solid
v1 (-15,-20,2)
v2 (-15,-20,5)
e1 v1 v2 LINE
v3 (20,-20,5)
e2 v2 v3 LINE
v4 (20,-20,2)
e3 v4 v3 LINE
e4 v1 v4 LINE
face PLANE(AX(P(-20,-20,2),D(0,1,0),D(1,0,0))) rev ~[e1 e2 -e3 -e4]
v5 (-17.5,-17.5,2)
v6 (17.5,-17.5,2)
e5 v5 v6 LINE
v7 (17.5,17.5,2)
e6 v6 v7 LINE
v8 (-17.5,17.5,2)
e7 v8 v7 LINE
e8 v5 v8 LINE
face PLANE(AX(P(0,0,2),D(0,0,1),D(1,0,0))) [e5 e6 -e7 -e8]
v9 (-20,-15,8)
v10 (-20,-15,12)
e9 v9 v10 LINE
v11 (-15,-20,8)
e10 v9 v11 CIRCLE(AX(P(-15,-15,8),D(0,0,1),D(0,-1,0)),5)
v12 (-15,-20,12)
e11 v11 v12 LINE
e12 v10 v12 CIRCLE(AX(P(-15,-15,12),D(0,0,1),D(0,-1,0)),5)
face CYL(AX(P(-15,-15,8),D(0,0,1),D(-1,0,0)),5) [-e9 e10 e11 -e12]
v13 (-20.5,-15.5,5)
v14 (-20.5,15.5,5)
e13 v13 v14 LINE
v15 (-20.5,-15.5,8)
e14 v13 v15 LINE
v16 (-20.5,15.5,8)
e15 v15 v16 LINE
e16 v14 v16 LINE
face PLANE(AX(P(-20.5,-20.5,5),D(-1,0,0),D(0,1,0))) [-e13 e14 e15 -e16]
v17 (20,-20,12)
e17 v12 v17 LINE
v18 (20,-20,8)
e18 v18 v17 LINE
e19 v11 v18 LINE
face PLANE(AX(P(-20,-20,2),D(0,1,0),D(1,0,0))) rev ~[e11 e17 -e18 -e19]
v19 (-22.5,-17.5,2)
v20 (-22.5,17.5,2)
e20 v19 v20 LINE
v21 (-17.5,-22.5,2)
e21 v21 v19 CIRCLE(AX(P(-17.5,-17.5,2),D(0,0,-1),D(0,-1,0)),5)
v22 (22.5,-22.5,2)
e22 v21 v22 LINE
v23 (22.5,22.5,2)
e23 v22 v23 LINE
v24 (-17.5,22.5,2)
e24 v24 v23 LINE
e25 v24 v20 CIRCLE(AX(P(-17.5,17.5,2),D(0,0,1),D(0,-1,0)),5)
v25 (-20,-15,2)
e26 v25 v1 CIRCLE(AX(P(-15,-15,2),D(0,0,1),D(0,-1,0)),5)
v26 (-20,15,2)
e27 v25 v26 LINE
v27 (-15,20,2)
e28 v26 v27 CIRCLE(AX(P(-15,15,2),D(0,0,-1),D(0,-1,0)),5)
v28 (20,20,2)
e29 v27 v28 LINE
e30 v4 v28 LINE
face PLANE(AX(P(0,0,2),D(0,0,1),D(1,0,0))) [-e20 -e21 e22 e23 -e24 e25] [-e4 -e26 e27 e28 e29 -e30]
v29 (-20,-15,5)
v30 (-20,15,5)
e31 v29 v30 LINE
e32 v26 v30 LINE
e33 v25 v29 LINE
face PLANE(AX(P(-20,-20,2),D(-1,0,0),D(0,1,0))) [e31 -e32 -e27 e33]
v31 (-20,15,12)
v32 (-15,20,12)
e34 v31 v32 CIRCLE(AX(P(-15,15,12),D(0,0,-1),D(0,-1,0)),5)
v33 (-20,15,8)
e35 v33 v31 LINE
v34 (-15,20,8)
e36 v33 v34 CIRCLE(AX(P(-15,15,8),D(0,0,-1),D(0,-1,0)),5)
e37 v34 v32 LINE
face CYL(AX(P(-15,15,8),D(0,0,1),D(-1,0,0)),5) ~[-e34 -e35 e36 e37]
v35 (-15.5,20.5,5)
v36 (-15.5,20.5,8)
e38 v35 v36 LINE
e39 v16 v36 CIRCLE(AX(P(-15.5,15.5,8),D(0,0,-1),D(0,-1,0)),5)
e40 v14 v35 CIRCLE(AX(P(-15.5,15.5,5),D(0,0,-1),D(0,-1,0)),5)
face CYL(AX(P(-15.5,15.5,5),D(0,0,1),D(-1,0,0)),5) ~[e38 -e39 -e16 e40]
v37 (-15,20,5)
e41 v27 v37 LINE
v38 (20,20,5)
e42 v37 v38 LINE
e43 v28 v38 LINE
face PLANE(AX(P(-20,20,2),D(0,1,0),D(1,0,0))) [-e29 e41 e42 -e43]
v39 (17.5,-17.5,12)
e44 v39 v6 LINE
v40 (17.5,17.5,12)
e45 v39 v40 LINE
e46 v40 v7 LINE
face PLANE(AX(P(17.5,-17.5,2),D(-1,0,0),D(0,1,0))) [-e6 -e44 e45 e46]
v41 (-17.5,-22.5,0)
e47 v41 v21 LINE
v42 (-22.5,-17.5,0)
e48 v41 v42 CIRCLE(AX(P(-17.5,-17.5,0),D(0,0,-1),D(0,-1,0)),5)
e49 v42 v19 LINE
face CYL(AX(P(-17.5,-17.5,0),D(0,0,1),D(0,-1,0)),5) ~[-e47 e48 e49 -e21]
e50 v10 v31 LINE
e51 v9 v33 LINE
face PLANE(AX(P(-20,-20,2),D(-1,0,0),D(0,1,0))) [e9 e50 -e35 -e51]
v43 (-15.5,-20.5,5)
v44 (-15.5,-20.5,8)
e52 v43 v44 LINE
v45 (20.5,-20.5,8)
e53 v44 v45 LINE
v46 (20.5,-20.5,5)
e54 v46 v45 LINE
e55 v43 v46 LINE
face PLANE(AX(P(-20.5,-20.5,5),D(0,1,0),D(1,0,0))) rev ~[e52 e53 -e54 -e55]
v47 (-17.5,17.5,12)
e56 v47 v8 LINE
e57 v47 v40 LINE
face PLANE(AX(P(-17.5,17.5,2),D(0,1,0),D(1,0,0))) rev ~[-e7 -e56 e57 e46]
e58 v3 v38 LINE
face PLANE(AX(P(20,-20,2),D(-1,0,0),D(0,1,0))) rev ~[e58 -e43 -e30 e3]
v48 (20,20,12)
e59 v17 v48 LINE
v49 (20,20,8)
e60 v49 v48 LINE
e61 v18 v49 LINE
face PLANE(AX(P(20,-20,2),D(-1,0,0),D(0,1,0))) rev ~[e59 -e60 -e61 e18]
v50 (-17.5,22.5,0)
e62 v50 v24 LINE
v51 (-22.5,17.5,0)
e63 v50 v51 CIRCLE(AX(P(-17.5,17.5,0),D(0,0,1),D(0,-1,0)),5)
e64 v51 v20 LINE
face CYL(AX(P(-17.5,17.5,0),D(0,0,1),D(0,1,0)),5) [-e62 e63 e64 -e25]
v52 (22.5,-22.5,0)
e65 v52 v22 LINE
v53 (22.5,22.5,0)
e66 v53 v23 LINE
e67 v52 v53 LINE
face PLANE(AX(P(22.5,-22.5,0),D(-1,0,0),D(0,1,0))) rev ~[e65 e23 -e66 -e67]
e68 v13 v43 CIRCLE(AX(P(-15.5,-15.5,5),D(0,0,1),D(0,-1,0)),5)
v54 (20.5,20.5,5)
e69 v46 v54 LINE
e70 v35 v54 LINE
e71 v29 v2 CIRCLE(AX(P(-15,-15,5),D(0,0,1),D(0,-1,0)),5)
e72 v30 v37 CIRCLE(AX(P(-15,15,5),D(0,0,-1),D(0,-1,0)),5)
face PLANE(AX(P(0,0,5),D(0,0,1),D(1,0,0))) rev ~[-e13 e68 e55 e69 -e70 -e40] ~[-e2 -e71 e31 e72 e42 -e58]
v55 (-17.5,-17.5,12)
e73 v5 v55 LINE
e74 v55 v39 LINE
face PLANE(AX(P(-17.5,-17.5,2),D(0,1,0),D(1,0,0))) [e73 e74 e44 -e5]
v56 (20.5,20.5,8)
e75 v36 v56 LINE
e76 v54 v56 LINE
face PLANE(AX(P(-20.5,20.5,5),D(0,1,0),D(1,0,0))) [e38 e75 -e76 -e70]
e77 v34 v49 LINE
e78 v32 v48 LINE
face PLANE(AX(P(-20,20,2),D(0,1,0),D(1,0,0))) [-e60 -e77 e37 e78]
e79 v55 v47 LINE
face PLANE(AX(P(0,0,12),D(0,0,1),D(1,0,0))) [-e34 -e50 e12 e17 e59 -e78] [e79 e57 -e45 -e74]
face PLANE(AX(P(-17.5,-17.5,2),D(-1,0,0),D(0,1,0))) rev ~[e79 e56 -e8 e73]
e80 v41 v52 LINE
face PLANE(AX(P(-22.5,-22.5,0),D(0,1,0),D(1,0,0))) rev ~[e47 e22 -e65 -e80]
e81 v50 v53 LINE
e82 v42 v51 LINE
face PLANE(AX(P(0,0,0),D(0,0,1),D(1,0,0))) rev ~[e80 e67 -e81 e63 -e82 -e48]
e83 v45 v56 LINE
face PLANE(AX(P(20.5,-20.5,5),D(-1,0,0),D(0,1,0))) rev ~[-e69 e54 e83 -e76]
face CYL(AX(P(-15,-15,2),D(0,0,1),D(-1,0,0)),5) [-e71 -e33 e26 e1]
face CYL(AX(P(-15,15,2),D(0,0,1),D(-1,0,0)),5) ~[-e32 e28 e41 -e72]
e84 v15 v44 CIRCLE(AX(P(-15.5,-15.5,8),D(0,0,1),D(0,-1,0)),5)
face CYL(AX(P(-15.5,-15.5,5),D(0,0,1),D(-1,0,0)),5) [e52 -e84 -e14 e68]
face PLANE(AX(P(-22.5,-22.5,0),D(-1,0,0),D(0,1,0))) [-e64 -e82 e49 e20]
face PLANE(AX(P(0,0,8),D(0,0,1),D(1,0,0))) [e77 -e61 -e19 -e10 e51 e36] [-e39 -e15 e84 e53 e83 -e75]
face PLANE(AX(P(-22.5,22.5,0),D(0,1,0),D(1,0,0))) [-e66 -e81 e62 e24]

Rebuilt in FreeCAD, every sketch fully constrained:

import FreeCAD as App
import Part
import Sketcher
from FreeCAD import Vector
Q = App.Units.Quantity


def edges_at(feature, points):
    """Names of the edges that pass closest to the given points."""
    edges = feature.Shape.Edges
    near = lambda p: min(range(len(edges)), key=lambda i: edges[i].distToShape(Part.Vertex(*p))[0])
    return sorted({f"Edge{near(p) + 1}" for p in points})


def add_polygon(sketch, points):
    """Adds a closed chain of lines whose ends are joined by coincident constraints."""
    first, n = sketch.GeometryCount, len(points)
    for a, b in zip(points, points[1:] + points[:1]):
        sketch.addGeometry(Part.LineSegment(App.Vector(*a, 0), App.Vector(*b, 0)), False)
    for i in range(n):
        sketch.addConstraint(Sketcher.Constraint("Coincident", first + i, 2, first + (i + 1) % n, 1))

doc = App.newDocument("Part")
params = doc.addObject("Spreadsheet::Sheet", "Params")
for row, (alias, value) in enumerate([
    ("sketch1_width", "45 mm"),
    ("pad1_length", "2 mm"),
    ("sketch2_width", "40 mm"),
    ("sketch2_width2", "35 mm"),
    ("pad2_length", "10 mm"),
    ("sketch3_width", "41 mm"),
    ("sketch3_width2", "35 mm"),
    ("pad3_length", "3 mm"),
    ("fillet_radius", "5 mm"),
], start=1):
    params.set(f"A{row}", alias)
    params.set(f"B{row}", "=" + value)
    params.setAlias(f"B{row}", alias)

body = doc.addObject("PartDesign::Body", "Body")

sketch1 = body.newObject("Sketcher::SketchObject", "Sketch")
sketch1.AttachmentSupport = (doc.getObject("XY_Plane"), [""])
sketch1.MapMode = "FlatFace"
add_polygon(sketch1, [(-22.5, 22.5), (-22.5, -22.5), (22.5, -22.5), (22.5, 22.5)])
sketch1.addConstraint(Sketcher.Constraint("Vertical", 0))
sketch1.addConstraint(Sketcher.Constraint("Horizontal", 1))
sketch1.addConstraint(Sketcher.Constraint("Vertical", 2))
sketch1.addConstraint(Sketcher.Constraint("Horizontal", 3))
sketch1.addConstraint(Sketcher.Constraint("Symmetric", 0, 2, 2, 2, -1, 1))
sketch1.addConstraint(Sketcher.Constraint("Equal", 3, 0))
sketch1.addConstraint(Sketcher.Constraint("DistanceX", 1, 1, 1, 2, Q("45 mm")))
sketch1.setExpression("Constraints[10]", "Params.sketch1_width")
pad1 = body.newObject("PartDesign::Pad", "Pad")
pad1.Profile = sketch1
pad1.setExpression("Length", "Params.pad1_length")

sketch2 = body.newObject("Sketcher::SketchObject", "Sketch001")
sketch2.AttachmentSupport = (doc.getObject("XY_Plane"), [""])
sketch2.MapMode = "FlatFace"
sketch2.AttachmentOffset = App.Placement(Vector(0, 0, 2), App.Rotation())
add_polygon(sketch2, [(-20, 20), (-20, -20), (20, -20), (20, 20)])
add_polygon(sketch2, [(17.5, -17.5), (-17.5, -17.5), (-17.5, 17.5), (17.5, 17.5)])
sketch2.addConstraint(Sketcher.Constraint("Vertical", 0))
sketch2.addConstraint(Sketcher.Constraint("Horizontal", 1))
sketch2.addConstraint(Sketcher.Constraint("Vertical", 2))
sketch2.addConstraint(Sketcher.Constraint("Horizontal", 3))
sketch2.addConstraint(Sketcher.Constraint("Horizontal", 4))
sketch2.addConstraint(Sketcher.Constraint("Vertical", 5))
sketch2.addConstraint(Sketcher.Constraint("Horizontal", 6))
sketch2.addConstraint(Sketcher.Constraint("Vertical", 7))
sketch2.addConstraint(Sketcher.Constraint("Symmetric", 0, 2, 2, 2, -1, 1))
sketch2.addConstraint(Sketcher.Constraint("Symmetric", 4, 2, 6, 2, -1, 1))
sketch2.addConstraint(Sketcher.Constraint("Equal", 3, 0))
sketch2.addConstraint(Sketcher.Constraint("Equal", 6, 5))
sketch2.addConstraint(Sketcher.Constraint("DistanceX", 1, 1, 1, 2, Q("40 mm")))
sketch2.addConstraint(Sketcher.Constraint("DistanceX", 4, 2, 4, 1, Q("35 mm")))
sketch2.setExpression("Constraints[20]", "Params.sketch2_width")
sketch2.setExpression("Constraints[21]", "Params.sketch2_width2")
pad2 = body.newObject("PartDesign::Pad", "Pad001")
pad2.Profile = sketch2
pad2.setExpression("Length", "Params.pad2_length")

sketch3 = body.newObject("Sketcher::SketchObject", "Sketch002")
sketch3.AttachmentSupport = (doc.getObject("XY_Plane"), [""])
sketch3.MapMode = "FlatFace"
sketch3.AttachmentOffset = App.Placement(Vector(0, 0, 5), App.Rotation())
add_polygon(sketch3, [(-20.5, 20.5), (-20.5, -20.5), (20.5, -20.5), (20.5, 20.5)])
add_polygon(sketch3, [(17.5, -17.5), (-17.5, -17.5), (-17.5, 17.5), (17.5, 17.5)])
sketch3.addConstraint(Sketcher.Constraint("Vertical", 0))
sketch3.addConstraint(Sketcher.Constraint("Horizontal", 1))
sketch3.addConstraint(Sketcher.Constraint("Vertical", 2))
sketch3.addConstraint(Sketcher.Constraint("Horizontal", 3))
sketch3.addConstraint(Sketcher.Constraint("Horizontal", 4))
sketch3.addConstraint(Sketcher.Constraint("Vertical", 5))
sketch3.addConstraint(Sketcher.Constraint("Horizontal", 6))
sketch3.addConstraint(Sketcher.Constraint("Vertical", 7))
sketch3.addConstraint(Sketcher.Constraint("Symmetric", 0, 2, 2, 2, -1, 1))
sketch3.addConstraint(Sketcher.Constraint("Symmetric", 4, 2, 6, 2, -1, 1))
sketch3.addConstraint(Sketcher.Constraint("Equal", 3, 0))
sketch3.addConstraint(Sketcher.Constraint("Equal", 6, 5))
sketch3.addConstraint(Sketcher.Constraint("DistanceX", 1, 1, 1, 2, Q("41 mm")))
sketch3.addConstraint(Sketcher.Constraint("DistanceX", 4, 2, 4, 1, Q("35 mm")))
sketch3.setExpression("Constraints[20]", "Params.sketch3_width")
sketch3.setExpression("Constraints[21]", "Params.sketch3_width2")
pad3 = body.newObject("PartDesign::Pad", "Pad002")
pad3.Profile = sketch3
pad3.setExpression("Length", "Params.pad3_length")
doc.recompute()

fillet = body.newObject("PartDesign::Fillet", "Fillet")
fillet.Base = (pad3, edges_at(pad3, [
    (-22.5, 22.5, 1),
    (-20, 20, 3.5),
    (-20.5, 20.5, 6.5),
    (-20, 20, 10),
    (-22.5, -22.5, 1),
    (-20, -20, 3.5),
    (-20.5, -20.5, 6.5),
    (-20, -20, 10),
]))
fillet.setExpression("Radius", "Params.fillet_radius")

doc.recompute()
